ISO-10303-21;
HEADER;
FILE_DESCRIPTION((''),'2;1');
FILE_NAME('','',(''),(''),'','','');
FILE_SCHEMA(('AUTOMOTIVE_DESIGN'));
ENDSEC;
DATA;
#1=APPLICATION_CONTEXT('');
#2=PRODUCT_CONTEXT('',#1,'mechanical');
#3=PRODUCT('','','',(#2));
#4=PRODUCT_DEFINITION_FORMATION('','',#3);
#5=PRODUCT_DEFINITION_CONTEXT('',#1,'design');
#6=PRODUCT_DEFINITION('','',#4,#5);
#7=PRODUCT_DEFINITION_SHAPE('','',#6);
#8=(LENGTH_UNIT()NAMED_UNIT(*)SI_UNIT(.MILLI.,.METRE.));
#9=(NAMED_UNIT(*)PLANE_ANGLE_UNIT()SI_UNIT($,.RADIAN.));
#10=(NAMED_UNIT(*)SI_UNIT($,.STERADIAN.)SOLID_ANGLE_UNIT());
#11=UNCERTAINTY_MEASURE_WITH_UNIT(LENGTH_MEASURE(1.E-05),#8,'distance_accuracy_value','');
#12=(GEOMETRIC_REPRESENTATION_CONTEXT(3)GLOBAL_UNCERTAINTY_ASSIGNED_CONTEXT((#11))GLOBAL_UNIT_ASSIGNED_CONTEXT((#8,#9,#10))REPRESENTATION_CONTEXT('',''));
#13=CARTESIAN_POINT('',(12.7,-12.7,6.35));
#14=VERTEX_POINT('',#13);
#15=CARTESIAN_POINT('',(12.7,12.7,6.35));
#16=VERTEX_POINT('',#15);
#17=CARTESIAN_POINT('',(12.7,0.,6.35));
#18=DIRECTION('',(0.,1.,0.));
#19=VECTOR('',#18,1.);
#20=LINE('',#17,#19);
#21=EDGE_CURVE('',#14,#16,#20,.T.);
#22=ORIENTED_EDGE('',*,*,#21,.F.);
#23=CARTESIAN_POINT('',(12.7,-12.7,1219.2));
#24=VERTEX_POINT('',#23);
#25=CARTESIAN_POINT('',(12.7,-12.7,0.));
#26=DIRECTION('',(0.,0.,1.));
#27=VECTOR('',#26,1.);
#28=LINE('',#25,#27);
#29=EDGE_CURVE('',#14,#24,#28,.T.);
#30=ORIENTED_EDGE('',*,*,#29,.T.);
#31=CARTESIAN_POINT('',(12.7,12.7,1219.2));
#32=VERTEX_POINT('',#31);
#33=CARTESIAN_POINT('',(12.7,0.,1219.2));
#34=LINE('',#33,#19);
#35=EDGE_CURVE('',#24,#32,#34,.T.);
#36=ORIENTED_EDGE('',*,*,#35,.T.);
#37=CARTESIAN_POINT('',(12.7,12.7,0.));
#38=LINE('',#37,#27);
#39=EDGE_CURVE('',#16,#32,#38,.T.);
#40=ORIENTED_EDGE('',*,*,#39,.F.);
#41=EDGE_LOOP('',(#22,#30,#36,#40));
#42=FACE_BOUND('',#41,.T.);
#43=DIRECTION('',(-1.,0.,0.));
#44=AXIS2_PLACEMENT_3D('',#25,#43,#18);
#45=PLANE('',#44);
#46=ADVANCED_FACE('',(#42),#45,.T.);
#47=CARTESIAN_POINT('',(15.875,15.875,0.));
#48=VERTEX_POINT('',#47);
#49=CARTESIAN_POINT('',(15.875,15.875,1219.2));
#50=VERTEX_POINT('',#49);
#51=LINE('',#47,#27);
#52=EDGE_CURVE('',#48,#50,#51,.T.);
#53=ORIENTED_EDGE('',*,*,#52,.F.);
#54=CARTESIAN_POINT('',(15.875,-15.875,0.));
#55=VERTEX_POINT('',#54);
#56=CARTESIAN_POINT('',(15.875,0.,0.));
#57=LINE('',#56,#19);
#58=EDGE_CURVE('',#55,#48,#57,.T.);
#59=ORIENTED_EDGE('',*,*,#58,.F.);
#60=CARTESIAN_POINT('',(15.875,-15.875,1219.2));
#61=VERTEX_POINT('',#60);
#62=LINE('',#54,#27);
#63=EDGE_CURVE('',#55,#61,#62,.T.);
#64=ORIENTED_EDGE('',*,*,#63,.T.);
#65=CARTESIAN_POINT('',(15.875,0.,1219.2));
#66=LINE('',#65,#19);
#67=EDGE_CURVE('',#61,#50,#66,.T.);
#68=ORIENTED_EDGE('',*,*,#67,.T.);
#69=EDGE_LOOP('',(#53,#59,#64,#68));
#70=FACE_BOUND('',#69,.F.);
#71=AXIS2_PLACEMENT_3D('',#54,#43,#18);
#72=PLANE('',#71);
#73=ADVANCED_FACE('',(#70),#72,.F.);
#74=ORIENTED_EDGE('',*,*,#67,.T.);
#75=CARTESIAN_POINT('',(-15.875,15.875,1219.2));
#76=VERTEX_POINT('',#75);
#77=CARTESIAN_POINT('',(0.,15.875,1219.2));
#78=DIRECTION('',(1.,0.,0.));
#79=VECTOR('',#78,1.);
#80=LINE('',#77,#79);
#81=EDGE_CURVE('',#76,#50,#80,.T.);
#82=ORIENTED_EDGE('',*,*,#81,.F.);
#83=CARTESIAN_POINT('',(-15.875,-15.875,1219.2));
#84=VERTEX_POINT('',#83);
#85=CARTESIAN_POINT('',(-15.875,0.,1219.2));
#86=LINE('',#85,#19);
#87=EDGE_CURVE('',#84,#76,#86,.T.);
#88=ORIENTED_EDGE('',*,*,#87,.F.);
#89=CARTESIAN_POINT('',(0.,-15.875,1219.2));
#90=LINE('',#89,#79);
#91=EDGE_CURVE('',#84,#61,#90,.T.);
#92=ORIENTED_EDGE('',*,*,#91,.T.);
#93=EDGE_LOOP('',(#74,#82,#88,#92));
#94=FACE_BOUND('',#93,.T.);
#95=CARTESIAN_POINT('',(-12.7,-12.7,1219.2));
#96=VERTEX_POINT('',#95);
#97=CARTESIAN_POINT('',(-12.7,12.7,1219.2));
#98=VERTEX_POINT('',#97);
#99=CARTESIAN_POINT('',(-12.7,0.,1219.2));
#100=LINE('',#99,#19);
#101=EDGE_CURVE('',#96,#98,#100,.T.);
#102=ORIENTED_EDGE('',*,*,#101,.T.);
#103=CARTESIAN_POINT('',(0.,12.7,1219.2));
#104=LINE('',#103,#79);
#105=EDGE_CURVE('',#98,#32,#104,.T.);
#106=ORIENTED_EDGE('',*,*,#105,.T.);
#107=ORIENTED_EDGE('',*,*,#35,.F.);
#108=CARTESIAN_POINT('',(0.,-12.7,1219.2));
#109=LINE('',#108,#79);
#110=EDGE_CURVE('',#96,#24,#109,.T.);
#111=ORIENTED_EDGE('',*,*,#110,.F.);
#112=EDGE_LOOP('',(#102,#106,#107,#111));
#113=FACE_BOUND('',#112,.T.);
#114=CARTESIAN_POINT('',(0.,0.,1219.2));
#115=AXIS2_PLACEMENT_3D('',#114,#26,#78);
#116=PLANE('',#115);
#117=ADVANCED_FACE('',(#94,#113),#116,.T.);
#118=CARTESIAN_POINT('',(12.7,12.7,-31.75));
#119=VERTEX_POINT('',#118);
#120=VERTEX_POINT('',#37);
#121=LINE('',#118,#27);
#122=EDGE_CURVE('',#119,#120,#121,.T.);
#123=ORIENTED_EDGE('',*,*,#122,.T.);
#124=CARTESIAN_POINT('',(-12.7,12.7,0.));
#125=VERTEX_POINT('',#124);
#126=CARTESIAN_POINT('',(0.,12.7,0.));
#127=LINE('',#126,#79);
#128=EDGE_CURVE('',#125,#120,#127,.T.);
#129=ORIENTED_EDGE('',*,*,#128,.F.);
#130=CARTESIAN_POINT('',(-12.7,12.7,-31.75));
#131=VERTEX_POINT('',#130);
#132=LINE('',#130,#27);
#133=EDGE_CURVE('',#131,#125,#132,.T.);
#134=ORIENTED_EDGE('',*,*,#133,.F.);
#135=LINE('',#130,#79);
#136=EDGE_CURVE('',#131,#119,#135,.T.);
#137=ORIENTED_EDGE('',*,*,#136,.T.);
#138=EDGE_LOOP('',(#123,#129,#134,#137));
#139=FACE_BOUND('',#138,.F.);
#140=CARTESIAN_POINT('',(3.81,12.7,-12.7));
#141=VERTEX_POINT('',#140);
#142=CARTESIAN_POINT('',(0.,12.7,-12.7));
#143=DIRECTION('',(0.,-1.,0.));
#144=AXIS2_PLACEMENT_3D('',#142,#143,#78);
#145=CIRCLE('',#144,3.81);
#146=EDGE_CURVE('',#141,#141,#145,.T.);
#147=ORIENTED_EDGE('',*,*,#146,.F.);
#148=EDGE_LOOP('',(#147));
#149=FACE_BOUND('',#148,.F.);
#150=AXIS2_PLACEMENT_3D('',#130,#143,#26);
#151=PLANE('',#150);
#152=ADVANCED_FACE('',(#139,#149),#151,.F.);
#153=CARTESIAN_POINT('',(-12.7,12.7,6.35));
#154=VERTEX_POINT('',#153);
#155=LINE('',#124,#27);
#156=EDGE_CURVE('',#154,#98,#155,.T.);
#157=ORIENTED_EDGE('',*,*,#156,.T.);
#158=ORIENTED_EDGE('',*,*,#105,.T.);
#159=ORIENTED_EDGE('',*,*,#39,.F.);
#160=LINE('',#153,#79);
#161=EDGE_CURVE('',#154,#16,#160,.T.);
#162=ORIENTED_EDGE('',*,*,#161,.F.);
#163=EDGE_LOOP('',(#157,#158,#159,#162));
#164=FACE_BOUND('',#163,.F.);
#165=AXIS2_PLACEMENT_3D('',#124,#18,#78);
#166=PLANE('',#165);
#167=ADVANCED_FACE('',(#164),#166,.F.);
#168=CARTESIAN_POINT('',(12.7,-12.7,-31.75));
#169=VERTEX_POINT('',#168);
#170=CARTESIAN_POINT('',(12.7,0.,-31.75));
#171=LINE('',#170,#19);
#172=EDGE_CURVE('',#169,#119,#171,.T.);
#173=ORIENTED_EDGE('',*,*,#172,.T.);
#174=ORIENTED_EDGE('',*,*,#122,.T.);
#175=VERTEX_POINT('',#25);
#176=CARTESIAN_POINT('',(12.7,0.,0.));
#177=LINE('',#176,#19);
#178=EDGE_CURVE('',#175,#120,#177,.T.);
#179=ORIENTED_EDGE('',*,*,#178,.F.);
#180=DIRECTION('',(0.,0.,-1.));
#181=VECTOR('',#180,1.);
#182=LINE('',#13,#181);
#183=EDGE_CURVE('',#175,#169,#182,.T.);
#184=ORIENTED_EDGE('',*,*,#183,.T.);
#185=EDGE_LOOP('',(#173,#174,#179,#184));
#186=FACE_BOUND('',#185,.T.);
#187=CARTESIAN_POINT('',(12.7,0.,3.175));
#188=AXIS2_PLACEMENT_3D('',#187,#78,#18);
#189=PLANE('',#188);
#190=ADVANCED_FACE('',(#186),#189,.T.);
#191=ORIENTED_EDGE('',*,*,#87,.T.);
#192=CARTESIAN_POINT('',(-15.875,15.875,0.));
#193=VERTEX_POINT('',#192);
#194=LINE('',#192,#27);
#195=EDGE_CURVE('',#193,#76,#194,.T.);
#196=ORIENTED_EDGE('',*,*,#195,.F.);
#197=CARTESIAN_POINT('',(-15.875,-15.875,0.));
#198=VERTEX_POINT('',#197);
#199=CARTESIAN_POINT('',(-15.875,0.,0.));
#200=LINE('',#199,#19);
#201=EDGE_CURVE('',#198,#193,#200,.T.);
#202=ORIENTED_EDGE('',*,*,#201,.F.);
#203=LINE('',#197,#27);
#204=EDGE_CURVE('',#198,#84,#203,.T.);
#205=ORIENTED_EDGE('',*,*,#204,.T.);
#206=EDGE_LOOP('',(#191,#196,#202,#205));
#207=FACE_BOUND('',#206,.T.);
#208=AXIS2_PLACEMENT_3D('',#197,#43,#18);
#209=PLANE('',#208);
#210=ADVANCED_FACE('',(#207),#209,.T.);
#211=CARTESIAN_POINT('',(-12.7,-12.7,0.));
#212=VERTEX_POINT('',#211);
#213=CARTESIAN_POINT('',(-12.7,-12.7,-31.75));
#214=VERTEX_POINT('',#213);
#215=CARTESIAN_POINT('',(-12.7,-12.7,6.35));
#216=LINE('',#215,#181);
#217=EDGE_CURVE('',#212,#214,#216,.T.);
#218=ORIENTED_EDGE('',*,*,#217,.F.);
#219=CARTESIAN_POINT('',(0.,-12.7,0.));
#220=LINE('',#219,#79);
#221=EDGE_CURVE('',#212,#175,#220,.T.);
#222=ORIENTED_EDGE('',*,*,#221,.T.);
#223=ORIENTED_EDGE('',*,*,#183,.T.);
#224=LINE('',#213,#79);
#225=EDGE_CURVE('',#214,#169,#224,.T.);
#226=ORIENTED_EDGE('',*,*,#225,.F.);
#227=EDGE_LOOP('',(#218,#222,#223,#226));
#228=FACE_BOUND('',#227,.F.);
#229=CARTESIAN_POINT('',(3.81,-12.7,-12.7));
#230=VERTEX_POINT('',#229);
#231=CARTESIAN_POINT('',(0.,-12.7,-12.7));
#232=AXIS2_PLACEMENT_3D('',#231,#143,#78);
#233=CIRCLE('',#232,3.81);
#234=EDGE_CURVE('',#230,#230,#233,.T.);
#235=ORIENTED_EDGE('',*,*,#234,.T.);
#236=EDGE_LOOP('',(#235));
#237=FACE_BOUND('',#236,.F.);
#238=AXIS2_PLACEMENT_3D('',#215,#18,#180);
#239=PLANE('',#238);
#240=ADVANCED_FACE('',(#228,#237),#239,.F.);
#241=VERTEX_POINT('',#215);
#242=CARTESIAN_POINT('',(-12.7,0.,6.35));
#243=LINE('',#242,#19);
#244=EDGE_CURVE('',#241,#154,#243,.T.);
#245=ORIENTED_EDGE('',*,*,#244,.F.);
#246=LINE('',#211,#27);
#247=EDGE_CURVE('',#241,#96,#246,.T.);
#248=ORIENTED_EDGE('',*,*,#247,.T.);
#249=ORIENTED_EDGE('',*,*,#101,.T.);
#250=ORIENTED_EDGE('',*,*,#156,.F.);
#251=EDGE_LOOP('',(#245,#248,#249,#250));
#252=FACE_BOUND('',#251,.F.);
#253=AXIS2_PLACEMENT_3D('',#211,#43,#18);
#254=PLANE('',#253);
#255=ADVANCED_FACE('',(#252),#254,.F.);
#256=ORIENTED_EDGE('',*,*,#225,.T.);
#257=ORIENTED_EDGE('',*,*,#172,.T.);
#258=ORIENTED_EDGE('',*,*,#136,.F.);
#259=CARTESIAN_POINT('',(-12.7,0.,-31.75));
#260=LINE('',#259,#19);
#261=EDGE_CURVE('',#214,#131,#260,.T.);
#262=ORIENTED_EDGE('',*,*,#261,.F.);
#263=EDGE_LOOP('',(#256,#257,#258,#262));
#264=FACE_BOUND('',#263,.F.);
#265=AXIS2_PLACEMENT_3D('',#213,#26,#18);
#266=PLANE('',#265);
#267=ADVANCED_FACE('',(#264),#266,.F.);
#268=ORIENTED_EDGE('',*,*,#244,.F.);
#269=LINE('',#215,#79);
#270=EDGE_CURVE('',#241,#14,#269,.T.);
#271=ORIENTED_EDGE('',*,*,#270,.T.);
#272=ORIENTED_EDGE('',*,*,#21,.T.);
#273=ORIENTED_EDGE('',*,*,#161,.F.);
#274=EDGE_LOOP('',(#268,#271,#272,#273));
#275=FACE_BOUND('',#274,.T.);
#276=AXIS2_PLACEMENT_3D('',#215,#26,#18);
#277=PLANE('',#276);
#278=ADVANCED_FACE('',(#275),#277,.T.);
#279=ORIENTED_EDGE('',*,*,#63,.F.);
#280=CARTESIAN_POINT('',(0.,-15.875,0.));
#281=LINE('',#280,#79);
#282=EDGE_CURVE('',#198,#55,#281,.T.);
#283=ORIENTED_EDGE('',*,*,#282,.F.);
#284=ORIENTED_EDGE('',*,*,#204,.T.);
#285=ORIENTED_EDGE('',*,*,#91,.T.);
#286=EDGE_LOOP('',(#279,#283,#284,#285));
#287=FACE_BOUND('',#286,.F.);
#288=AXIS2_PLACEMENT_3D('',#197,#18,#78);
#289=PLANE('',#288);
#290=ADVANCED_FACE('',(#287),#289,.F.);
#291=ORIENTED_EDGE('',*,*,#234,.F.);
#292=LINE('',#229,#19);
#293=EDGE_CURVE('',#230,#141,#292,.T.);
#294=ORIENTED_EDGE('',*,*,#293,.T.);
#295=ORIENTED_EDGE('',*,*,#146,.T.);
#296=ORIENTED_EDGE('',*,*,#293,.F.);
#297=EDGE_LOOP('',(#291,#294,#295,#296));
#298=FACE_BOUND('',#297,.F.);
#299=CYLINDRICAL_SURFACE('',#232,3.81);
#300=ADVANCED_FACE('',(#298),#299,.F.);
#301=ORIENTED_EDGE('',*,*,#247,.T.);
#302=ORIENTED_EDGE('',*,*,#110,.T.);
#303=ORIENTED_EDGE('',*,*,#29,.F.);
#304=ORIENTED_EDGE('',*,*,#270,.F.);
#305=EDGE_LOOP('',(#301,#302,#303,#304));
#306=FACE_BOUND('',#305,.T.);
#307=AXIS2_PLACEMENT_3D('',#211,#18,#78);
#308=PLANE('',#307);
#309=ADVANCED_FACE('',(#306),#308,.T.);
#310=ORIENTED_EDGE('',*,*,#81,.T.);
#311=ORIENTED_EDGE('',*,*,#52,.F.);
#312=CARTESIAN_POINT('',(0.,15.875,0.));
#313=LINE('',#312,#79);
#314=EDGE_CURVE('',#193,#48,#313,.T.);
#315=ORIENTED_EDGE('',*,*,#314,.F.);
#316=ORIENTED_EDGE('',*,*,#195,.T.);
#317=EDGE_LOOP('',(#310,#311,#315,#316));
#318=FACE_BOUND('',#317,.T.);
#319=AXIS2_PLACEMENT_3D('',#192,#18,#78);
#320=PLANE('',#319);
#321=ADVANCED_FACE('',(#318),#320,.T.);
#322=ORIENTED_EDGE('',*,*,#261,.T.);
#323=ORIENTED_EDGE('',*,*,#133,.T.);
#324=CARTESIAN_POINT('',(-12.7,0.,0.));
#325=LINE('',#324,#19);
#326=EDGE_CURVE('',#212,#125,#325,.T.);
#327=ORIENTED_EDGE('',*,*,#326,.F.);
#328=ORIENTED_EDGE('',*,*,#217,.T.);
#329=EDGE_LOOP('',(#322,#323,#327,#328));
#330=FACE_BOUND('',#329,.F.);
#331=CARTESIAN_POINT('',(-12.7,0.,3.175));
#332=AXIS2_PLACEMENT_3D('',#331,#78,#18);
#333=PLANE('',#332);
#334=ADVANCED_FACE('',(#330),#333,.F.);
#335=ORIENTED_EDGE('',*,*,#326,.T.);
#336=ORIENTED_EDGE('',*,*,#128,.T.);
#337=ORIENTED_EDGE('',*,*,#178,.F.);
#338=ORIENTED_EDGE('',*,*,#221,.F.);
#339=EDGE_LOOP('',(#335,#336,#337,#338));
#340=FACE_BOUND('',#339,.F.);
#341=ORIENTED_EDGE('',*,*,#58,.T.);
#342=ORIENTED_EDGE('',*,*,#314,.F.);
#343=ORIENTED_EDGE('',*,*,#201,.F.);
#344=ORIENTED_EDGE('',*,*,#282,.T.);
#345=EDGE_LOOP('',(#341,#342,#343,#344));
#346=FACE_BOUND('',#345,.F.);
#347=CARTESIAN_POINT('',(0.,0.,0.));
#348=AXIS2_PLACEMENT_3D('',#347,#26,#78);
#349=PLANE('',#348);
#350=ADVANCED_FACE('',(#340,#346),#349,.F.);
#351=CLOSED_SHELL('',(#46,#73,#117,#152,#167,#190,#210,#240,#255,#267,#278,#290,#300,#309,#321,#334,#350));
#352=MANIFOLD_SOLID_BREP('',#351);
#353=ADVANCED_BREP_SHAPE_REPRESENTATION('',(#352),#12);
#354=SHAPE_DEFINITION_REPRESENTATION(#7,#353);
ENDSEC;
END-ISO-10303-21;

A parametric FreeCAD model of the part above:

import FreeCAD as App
import Part
import Sketcher
from FreeCAD import Vector
Q = App.Units.Quantity

doc = App.newDocument("Part")
params = doc.addObject("Spreadsheet::Sheet", "Params")
for row, (alias, value) in enumerate([
    ("sketch1_width", "1 in"),
    ("sketch1_width2", "1.25 in"),
    ("pad1_length", "48 in"),
    ("sketch2_width", "1 in"),
    ("sketch2_height", "1.5 in"),
    ("pad2_length", "1 in"),
    ("sketch3_diameter", "0.3 in"),
    ("sketch4_width", "1 in"),
    ("pad3_length", "1.25 in"),
    ("sketch5_diameter", "0.3 in"),
], start=1):
    params.set(f"A{row}", alias)
    params.set(f"B{row}", "=" + value)
    params.setAlias(f"B{row}", alias)

body = doc.addObject("PartDesign::Body", "Body")

# Sketch on XY plane
sketch1 = body.newObject("Sketcher::SketchObject", "Sketch")
sketch1.AttachmentSupport = (doc.getObject("XY_Plane"), [""])
sketch1.MapMode = "FlatFace"
sketch1.addGeometry(Part.LineSegment(Vector(-16, 16, 0), Vector(-16, -16, 0)), False)
sketch1.addGeometry(Part.LineSegment(Vector(-16, -16, 0), Vector(16, -16, 0)), False)
sketch1.addGeometry(Part.LineSegment(Vector(16, -16, 0), Vector(16, 16, 0)), False)
sketch1.addGeometry(Part.LineSegment(Vector(16, 16, 0), Vector(-16, 16, 0)), False)
sketch1.addGeometry(Part.LineSegment(Vector(13, -13, 0), Vector(-13, -13, 0)), False)
sketch1.addGeometry(Part.LineSegment(Vector(-13, -13, 0), Vector(-13, 13, 0)), False)
sketch1.addGeometry(Part.LineSegment(Vector(-13, 13, 0), Vector(13, 13, 0)), False)
sketch1.addGeometry(Part.LineSegment(Vector(13, 13, 0), Vector(13, -13, 0)), False)
sketch1.addConstraint(Sketcher.Constraint("Coincident", 0, 2, 1, 1))
sketch1.addConstraint(Sketcher.Constraint("Coincident", 1, 2, 2, 1))
sketch1.addConstraint(Sketcher.Constraint("Coincident", 2, 2, 3, 1))
sketch1.addConstraint(Sketcher.Constraint("Coincident", 3, 2, 0, 1))
sketch1.addConstraint(Sketcher.Constraint("Coincident", 4, 2, 5, 1))
sketch1.addConstraint(Sketcher.Constraint("Coincident", 5, 2, 6, 1))
sketch1.addConstraint(Sketcher.Constraint("Coincident", 6, 2, 7, 1))
sketch1.addConstraint(Sketcher.Constraint("Coincident", 7, 2, 4, 1))
sketch1.addConstraint(Sketcher.Constraint("Vertical", 0))
sketch1.addConstraint(Sketcher.Constraint("Horizontal", 1))
sketch1.addConstraint(Sketcher.Constraint("Vertical", 2))
sketch1.addConstraint(Sketcher.Constraint("Horizontal", 3))
sketch1.addConstraint(Sketcher.Constraint("Horizontal", 4))
sketch1.addConstraint(Sketcher.Constraint("Vertical", 5))
sketch1.addConstraint(Sketcher.Constraint("Horizontal", 6))
sketch1.addConstraint(Sketcher.Constraint("Vertical", 7))
sketch1.addConstraint(Sketcher.Constraint("Symmetric", 0, 2, 2, 2, -1, 1))
sketch1.addConstraint(Sketcher.Constraint("Symmetric", 4, 2, 6, 2, -1, 1))
sketch1.addConstraint(Sketcher.Constraint("Equal", 3, 0))
sketch1.addConstraint(Sketcher.Constraint("Equal", 6, 5))
sketch1.addConstraint(Sketcher.Constraint("DistanceX", 4, 2, 4, 1, Q("1 in")))
sketch1.addConstraint(Sketcher.Constraint("DistanceX", 1, 1, 1, 2, Q("1.25 in")))
sketch1.setExpression("Constraints[20]", "Params.sketch1_width")
sketch1.setExpression("Constraints[21]", "Params.sketch1_width2")
pad1 = body.newObject("PartDesign::Pad", "Pad")
pad1.Profile = sketch1
pad1.setExpression("Length", "Params.pad1_length")

# Sketch on YZ plane
sketch2 = body.newObject("Sketcher::SketchObject", "Sketch001")
sketch2.AttachmentSupport = (doc.getObject("YZ_Plane"), [""])
sketch2.MapMode = "FlatFace"
sketch2.AttachmentOffset = App.Placement(Vector(0, 0, -0.5 * 25.4), App.Rotation())
sketch2.addGeometry(Part.LineSegment(Vector(-13, 6, 0), Vector(-13, -32, 0)), False)
sketch2.addGeometry(Part.LineSegment(Vector(-13, -32, 0), Vector(13, -32, 0)), False)
sketch2.addGeometry(Part.LineSegment(Vector(13, -32, 0), Vector(13, 6, 0)), False)
sketch2.addGeometry(Part.LineSegment(Vector(13, 6, 0), Vector(-13, 6, 0)), False)
sketch2.addConstraint(Sketcher.Constraint("Coincident", 0, 2, 1, 1))
sketch2.addConstraint(Sketcher.Constraint("Coincident", 1, 2, 2, 1))
sketch2.addConstraint(Sketcher.Constraint("Coincident", 2, 2, 3, 1))
sketch2.addConstraint(Sketcher.Constraint("Coincident", 3, 2, 0, 1))
sketch2.addConstraint(Sketcher.Constraint("Vertical", 0))
sketch2.addConstraint(Sketcher.Constraint("Horizontal", 1))
sketch2.addConstraint(Sketcher.Constraint("Vertical", 2))
sketch2.addConstraint(Sketcher.Constraint("Horizontal", 3))
sketch2.addConstraint(Sketcher.Constraint("DistanceX", 1, 1, 1, 2, Q("1 in")))
sketch2.addConstraint(Sketcher.Constraint("DistanceY", 0, 2, 0, 1, Q("1.5 in")))
sketch2.addConstraint(Sketcher.Constraint("DistanceX", 0, 2, -1, 1, Q("0.5 in")))
sketch2.addConstraint(Sketcher.Constraint("DistanceY", 0, 2, -1, 1, Q("1.25 in")))
sketch2.setExpression("Constraints[8]", "Params.sketch2_width")
sketch2.setExpression("Constraints[9]", "Params.sketch2_height")
pad2 = body.newObject("PartDesign::Pad", "Pad001")
pad2.Profile = sketch2
pad2.setExpression("Length", "Params.pad2_length")

# Sketch on XZ plane
sketch3 = body.newObject("Sketcher::SketchObject", "Sketch002")
sketch3.AttachmentSupport = (doc.getObject("XZ_Plane"), [""])
sketch3.MapMode = "FlatFace"
sketch3.AttachmentOffset = App.Placement(Vector(0, 0, 0.5 * 25.4), App.Rotation())
sketch3.addGeometry(Part.Circle(Vector(0, -12.7, 0), Vector(0, 0, 1), 3.8), False)
sketch3.addConstraint(Sketcher.Constraint("PointOnObject", 0, 3, -2))
sketch3.addConstraint(Sketcher.Constraint("Diameter", 0, Q("0.3 in")))
sketch3.addConstraint(Sketcher.Constraint("DistanceY", 0, 3, -1, 1, Q("0.5 in")))
sketch3.setExpression("Constraints[1]", "Params.sketch3_diameter")
pocket1 = body.newObject("PartDesign::Pocket", "Pocket")
pocket1.Profile = sketch3
pocket1.Type = "ThroughAll"
body2 = doc.addObject("PartDesign::Body", "Body001")

# Sketch on XY plane
sketch4 = body2.newObject("Sketcher::SketchObject", "Sketch003")
sketch4.AttachmentSupport = (doc.getObject("XY_Plane001"), [""])
sketch4.MapMode = "FlatFace"
sketch4.addGeometry(Part.LineSegment(Vector(-13, -13, 0), Vector(-13, 13, 0)), False)
sketch4.addGeometry(Part.LineSegment(Vector(-13, 13, 0), Vector(13, 13, 0)), False)
sketch4.addGeometry(Part.LineSegment(Vector(13, 13, 0), Vector(13, -13, 0)), False)
sketch4.addGeometry(Part.LineSegment(Vector(13, -13, 0), Vector(-13, -13, 0)), False)
sketch4.addConstraint(Sketcher.Constraint("Coincident", 0, 2, 1, 1))
sketch4.addConstraint(Sketcher.Constraint("Coincident", 1, 2, 2, 1))
sketch4.addConstraint(Sketcher.Constraint("Coincident", 2, 2, 3, 1))
sketch4.addConstraint(Sketcher.Constraint("Coincident", 3, 2, 0, 1))
sketch4.addConstraint(Sketcher.Constraint("Vertical", 0))
sketch4.addConstraint(Sketcher.Constraint("Horizontal", 1))
sketch4.addConstraint(Sketcher.Constraint("Vertical", 2))
sketch4.addConstraint(Sketcher.Constraint("Horizontal", 3))
sketch4.addConstraint(Sketcher.Constraint("Symmetric", 0, 2, 2, 2, -1, 1))
sketch4.addConstraint(Sketcher.Constraint("Equal", 3, 0))
sketch4.addConstraint(Sketcher.Constraint("DistanceX", 1, 1, 1, 2, Q("1 in")))
sketch4.setExpression("Constraints[10]", "Params.sketch4_width")
pad3 = body2.newObject("PartDesign::Pad", "Pad002")
pad3.Profile = sketch4
pad3.setExpression("Length", "Params.pad3_length")
pad3.Reversed = True

# Sketch on XZ plane
sketch5 = body2.newObject("Sketcher::SketchObject", "Sketch004")
sketch5.AttachmentSupport = (doc.getObject("XZ_Plane001"), [""])
sketch5.MapMode = "FlatFace"
sketch5.AttachmentOffset = App.Placement(Vector(0, 0, 0.5 * 25.4), App.Rotation())
sketch5.addGeometry(Part.Circle(Vector(0, -12.7, 0), Vector(0, 0, 1), 3.8), False)
sketch5.addConstraint(Sketcher.Constraint("PointOnObject", 0, 3, -2))
sketch5.addConstraint(Sketcher.Constraint("Diameter", 0, Q("0.3 in")))
sketch5.addConstraint(Sketcher.Constraint("DistanceY", 0, 3, -1, 1, Q("0.5 in")))
sketch5.setExpression("Constraints[1]", "Params.sketch5_diameter")
pocket2 = body2.newObject("PartDesign::Pocket", "Pocket001")
pocket2.Profile = sketch5
pocket2.Type = "ThroughAll"
body2.Visibility = False

doc.recompute()
